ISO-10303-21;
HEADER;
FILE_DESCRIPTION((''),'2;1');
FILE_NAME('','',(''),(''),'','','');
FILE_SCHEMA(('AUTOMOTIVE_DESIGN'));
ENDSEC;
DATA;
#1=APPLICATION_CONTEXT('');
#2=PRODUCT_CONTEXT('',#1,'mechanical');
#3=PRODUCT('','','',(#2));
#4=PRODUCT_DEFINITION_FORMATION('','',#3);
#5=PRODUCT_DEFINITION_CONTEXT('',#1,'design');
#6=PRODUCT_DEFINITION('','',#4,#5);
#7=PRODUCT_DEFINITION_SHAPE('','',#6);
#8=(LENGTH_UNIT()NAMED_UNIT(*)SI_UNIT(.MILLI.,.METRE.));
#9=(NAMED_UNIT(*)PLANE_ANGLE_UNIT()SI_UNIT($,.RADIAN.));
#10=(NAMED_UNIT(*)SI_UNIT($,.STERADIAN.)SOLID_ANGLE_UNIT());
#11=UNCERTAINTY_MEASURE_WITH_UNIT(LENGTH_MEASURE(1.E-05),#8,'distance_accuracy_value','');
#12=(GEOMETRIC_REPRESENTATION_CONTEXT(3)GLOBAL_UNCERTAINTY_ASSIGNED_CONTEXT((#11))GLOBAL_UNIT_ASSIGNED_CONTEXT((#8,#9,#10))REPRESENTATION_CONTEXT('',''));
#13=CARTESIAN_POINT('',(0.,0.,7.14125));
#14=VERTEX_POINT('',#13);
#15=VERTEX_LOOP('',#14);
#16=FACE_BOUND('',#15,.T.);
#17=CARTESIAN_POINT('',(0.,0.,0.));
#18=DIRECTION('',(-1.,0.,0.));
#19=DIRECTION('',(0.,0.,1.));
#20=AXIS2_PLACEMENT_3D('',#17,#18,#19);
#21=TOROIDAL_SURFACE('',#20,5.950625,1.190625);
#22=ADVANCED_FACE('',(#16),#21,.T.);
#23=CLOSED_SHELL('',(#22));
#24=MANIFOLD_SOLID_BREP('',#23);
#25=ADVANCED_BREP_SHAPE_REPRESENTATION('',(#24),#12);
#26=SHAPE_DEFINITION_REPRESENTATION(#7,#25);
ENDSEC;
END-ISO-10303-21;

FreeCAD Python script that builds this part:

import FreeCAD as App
import Part
import Sketcher
from FreeCAD import Vector
Q = App.Units.Quantity

doc = App.newDocument("Part")
body = doc.addObject("PartDesign::Body", "Body")

sketch1 = body.newObject("Sketcher::SketchObject", "Sketch")
sketch1.AttachmentSupport = (doc.getObject("XY_Plane"), [""])
sketch1.MapMode = "FlatFace"
sketch1.addGeometry(Part.Circle(Vector(0, 5.950625, 0), Vector(0, 0, 1), 1.190625), False)
sketch1.addConstraint([
    Sketcher.Constraint("PointOnObject", 0, 3, -2),
    Sketcher.Constraint("Diameter", 0, Q("0.09375 in")),
    Sketcher.Constraint("DistanceY", -1, 1, 0, 3, Q("5.950625 mm")),
])
revolution = body.newObject("PartDesign::Revolution", "Revolution")
revolution.Profile = sketch1
revolution.ReferenceAxis = (sketch1, ["H_Axis"])
revolution.Angle = 360

doc.recompute()
